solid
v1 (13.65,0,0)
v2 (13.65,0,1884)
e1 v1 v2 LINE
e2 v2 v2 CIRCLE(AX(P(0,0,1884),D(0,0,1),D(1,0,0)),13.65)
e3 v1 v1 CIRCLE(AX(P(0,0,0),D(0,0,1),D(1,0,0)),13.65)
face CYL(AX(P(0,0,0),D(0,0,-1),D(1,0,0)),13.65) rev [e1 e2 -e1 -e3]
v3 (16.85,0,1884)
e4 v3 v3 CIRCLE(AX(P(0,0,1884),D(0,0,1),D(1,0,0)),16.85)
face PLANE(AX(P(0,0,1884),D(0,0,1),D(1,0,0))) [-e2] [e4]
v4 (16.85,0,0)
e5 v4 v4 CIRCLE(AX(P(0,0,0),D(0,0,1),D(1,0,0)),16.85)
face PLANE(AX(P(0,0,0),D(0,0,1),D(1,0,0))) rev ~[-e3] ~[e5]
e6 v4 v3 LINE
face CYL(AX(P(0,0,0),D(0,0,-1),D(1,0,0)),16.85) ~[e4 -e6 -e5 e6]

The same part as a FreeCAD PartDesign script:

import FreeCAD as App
import Part
import Sketcher
from FreeCAD import Vector

doc = App.newDocument("Part")
body = doc.addObject("PartDesign::Body", "Body")

# Sketch on XY plane
sketch1 = body.newObject("Sketcher::SketchObject", "Sketch")
sketch1.AttachmentSupport = (doc.getObject("XY_Plane"), [""])
sketch1.MapMode = "FlatFace"
sketch1.addGeometry([
    Part.Circle(Vector(0, 0, 0), Vector(0, 0, 1), 17),
    Part.Circle(Vector(0, 0, 0), Vector(0, 0, 1), 14),
], False)
sketch1.addConstraint([
    Sketcher.Constraint("Coincident", 0, 3, -1, 1),
    Sketcher.Constraint("Coincident", 1, 3, -1, 1),
    Sketcher.Constraint("Diameter", 0, 33.7),
    Sketcher.Constraint("Diameter", 1, 27.3),
])
pad1 = body.newObject("PartDesign::Pad", "Pad")
pad1.Profile = sketch1
pad1.Length = 1884

doc.recompute()
